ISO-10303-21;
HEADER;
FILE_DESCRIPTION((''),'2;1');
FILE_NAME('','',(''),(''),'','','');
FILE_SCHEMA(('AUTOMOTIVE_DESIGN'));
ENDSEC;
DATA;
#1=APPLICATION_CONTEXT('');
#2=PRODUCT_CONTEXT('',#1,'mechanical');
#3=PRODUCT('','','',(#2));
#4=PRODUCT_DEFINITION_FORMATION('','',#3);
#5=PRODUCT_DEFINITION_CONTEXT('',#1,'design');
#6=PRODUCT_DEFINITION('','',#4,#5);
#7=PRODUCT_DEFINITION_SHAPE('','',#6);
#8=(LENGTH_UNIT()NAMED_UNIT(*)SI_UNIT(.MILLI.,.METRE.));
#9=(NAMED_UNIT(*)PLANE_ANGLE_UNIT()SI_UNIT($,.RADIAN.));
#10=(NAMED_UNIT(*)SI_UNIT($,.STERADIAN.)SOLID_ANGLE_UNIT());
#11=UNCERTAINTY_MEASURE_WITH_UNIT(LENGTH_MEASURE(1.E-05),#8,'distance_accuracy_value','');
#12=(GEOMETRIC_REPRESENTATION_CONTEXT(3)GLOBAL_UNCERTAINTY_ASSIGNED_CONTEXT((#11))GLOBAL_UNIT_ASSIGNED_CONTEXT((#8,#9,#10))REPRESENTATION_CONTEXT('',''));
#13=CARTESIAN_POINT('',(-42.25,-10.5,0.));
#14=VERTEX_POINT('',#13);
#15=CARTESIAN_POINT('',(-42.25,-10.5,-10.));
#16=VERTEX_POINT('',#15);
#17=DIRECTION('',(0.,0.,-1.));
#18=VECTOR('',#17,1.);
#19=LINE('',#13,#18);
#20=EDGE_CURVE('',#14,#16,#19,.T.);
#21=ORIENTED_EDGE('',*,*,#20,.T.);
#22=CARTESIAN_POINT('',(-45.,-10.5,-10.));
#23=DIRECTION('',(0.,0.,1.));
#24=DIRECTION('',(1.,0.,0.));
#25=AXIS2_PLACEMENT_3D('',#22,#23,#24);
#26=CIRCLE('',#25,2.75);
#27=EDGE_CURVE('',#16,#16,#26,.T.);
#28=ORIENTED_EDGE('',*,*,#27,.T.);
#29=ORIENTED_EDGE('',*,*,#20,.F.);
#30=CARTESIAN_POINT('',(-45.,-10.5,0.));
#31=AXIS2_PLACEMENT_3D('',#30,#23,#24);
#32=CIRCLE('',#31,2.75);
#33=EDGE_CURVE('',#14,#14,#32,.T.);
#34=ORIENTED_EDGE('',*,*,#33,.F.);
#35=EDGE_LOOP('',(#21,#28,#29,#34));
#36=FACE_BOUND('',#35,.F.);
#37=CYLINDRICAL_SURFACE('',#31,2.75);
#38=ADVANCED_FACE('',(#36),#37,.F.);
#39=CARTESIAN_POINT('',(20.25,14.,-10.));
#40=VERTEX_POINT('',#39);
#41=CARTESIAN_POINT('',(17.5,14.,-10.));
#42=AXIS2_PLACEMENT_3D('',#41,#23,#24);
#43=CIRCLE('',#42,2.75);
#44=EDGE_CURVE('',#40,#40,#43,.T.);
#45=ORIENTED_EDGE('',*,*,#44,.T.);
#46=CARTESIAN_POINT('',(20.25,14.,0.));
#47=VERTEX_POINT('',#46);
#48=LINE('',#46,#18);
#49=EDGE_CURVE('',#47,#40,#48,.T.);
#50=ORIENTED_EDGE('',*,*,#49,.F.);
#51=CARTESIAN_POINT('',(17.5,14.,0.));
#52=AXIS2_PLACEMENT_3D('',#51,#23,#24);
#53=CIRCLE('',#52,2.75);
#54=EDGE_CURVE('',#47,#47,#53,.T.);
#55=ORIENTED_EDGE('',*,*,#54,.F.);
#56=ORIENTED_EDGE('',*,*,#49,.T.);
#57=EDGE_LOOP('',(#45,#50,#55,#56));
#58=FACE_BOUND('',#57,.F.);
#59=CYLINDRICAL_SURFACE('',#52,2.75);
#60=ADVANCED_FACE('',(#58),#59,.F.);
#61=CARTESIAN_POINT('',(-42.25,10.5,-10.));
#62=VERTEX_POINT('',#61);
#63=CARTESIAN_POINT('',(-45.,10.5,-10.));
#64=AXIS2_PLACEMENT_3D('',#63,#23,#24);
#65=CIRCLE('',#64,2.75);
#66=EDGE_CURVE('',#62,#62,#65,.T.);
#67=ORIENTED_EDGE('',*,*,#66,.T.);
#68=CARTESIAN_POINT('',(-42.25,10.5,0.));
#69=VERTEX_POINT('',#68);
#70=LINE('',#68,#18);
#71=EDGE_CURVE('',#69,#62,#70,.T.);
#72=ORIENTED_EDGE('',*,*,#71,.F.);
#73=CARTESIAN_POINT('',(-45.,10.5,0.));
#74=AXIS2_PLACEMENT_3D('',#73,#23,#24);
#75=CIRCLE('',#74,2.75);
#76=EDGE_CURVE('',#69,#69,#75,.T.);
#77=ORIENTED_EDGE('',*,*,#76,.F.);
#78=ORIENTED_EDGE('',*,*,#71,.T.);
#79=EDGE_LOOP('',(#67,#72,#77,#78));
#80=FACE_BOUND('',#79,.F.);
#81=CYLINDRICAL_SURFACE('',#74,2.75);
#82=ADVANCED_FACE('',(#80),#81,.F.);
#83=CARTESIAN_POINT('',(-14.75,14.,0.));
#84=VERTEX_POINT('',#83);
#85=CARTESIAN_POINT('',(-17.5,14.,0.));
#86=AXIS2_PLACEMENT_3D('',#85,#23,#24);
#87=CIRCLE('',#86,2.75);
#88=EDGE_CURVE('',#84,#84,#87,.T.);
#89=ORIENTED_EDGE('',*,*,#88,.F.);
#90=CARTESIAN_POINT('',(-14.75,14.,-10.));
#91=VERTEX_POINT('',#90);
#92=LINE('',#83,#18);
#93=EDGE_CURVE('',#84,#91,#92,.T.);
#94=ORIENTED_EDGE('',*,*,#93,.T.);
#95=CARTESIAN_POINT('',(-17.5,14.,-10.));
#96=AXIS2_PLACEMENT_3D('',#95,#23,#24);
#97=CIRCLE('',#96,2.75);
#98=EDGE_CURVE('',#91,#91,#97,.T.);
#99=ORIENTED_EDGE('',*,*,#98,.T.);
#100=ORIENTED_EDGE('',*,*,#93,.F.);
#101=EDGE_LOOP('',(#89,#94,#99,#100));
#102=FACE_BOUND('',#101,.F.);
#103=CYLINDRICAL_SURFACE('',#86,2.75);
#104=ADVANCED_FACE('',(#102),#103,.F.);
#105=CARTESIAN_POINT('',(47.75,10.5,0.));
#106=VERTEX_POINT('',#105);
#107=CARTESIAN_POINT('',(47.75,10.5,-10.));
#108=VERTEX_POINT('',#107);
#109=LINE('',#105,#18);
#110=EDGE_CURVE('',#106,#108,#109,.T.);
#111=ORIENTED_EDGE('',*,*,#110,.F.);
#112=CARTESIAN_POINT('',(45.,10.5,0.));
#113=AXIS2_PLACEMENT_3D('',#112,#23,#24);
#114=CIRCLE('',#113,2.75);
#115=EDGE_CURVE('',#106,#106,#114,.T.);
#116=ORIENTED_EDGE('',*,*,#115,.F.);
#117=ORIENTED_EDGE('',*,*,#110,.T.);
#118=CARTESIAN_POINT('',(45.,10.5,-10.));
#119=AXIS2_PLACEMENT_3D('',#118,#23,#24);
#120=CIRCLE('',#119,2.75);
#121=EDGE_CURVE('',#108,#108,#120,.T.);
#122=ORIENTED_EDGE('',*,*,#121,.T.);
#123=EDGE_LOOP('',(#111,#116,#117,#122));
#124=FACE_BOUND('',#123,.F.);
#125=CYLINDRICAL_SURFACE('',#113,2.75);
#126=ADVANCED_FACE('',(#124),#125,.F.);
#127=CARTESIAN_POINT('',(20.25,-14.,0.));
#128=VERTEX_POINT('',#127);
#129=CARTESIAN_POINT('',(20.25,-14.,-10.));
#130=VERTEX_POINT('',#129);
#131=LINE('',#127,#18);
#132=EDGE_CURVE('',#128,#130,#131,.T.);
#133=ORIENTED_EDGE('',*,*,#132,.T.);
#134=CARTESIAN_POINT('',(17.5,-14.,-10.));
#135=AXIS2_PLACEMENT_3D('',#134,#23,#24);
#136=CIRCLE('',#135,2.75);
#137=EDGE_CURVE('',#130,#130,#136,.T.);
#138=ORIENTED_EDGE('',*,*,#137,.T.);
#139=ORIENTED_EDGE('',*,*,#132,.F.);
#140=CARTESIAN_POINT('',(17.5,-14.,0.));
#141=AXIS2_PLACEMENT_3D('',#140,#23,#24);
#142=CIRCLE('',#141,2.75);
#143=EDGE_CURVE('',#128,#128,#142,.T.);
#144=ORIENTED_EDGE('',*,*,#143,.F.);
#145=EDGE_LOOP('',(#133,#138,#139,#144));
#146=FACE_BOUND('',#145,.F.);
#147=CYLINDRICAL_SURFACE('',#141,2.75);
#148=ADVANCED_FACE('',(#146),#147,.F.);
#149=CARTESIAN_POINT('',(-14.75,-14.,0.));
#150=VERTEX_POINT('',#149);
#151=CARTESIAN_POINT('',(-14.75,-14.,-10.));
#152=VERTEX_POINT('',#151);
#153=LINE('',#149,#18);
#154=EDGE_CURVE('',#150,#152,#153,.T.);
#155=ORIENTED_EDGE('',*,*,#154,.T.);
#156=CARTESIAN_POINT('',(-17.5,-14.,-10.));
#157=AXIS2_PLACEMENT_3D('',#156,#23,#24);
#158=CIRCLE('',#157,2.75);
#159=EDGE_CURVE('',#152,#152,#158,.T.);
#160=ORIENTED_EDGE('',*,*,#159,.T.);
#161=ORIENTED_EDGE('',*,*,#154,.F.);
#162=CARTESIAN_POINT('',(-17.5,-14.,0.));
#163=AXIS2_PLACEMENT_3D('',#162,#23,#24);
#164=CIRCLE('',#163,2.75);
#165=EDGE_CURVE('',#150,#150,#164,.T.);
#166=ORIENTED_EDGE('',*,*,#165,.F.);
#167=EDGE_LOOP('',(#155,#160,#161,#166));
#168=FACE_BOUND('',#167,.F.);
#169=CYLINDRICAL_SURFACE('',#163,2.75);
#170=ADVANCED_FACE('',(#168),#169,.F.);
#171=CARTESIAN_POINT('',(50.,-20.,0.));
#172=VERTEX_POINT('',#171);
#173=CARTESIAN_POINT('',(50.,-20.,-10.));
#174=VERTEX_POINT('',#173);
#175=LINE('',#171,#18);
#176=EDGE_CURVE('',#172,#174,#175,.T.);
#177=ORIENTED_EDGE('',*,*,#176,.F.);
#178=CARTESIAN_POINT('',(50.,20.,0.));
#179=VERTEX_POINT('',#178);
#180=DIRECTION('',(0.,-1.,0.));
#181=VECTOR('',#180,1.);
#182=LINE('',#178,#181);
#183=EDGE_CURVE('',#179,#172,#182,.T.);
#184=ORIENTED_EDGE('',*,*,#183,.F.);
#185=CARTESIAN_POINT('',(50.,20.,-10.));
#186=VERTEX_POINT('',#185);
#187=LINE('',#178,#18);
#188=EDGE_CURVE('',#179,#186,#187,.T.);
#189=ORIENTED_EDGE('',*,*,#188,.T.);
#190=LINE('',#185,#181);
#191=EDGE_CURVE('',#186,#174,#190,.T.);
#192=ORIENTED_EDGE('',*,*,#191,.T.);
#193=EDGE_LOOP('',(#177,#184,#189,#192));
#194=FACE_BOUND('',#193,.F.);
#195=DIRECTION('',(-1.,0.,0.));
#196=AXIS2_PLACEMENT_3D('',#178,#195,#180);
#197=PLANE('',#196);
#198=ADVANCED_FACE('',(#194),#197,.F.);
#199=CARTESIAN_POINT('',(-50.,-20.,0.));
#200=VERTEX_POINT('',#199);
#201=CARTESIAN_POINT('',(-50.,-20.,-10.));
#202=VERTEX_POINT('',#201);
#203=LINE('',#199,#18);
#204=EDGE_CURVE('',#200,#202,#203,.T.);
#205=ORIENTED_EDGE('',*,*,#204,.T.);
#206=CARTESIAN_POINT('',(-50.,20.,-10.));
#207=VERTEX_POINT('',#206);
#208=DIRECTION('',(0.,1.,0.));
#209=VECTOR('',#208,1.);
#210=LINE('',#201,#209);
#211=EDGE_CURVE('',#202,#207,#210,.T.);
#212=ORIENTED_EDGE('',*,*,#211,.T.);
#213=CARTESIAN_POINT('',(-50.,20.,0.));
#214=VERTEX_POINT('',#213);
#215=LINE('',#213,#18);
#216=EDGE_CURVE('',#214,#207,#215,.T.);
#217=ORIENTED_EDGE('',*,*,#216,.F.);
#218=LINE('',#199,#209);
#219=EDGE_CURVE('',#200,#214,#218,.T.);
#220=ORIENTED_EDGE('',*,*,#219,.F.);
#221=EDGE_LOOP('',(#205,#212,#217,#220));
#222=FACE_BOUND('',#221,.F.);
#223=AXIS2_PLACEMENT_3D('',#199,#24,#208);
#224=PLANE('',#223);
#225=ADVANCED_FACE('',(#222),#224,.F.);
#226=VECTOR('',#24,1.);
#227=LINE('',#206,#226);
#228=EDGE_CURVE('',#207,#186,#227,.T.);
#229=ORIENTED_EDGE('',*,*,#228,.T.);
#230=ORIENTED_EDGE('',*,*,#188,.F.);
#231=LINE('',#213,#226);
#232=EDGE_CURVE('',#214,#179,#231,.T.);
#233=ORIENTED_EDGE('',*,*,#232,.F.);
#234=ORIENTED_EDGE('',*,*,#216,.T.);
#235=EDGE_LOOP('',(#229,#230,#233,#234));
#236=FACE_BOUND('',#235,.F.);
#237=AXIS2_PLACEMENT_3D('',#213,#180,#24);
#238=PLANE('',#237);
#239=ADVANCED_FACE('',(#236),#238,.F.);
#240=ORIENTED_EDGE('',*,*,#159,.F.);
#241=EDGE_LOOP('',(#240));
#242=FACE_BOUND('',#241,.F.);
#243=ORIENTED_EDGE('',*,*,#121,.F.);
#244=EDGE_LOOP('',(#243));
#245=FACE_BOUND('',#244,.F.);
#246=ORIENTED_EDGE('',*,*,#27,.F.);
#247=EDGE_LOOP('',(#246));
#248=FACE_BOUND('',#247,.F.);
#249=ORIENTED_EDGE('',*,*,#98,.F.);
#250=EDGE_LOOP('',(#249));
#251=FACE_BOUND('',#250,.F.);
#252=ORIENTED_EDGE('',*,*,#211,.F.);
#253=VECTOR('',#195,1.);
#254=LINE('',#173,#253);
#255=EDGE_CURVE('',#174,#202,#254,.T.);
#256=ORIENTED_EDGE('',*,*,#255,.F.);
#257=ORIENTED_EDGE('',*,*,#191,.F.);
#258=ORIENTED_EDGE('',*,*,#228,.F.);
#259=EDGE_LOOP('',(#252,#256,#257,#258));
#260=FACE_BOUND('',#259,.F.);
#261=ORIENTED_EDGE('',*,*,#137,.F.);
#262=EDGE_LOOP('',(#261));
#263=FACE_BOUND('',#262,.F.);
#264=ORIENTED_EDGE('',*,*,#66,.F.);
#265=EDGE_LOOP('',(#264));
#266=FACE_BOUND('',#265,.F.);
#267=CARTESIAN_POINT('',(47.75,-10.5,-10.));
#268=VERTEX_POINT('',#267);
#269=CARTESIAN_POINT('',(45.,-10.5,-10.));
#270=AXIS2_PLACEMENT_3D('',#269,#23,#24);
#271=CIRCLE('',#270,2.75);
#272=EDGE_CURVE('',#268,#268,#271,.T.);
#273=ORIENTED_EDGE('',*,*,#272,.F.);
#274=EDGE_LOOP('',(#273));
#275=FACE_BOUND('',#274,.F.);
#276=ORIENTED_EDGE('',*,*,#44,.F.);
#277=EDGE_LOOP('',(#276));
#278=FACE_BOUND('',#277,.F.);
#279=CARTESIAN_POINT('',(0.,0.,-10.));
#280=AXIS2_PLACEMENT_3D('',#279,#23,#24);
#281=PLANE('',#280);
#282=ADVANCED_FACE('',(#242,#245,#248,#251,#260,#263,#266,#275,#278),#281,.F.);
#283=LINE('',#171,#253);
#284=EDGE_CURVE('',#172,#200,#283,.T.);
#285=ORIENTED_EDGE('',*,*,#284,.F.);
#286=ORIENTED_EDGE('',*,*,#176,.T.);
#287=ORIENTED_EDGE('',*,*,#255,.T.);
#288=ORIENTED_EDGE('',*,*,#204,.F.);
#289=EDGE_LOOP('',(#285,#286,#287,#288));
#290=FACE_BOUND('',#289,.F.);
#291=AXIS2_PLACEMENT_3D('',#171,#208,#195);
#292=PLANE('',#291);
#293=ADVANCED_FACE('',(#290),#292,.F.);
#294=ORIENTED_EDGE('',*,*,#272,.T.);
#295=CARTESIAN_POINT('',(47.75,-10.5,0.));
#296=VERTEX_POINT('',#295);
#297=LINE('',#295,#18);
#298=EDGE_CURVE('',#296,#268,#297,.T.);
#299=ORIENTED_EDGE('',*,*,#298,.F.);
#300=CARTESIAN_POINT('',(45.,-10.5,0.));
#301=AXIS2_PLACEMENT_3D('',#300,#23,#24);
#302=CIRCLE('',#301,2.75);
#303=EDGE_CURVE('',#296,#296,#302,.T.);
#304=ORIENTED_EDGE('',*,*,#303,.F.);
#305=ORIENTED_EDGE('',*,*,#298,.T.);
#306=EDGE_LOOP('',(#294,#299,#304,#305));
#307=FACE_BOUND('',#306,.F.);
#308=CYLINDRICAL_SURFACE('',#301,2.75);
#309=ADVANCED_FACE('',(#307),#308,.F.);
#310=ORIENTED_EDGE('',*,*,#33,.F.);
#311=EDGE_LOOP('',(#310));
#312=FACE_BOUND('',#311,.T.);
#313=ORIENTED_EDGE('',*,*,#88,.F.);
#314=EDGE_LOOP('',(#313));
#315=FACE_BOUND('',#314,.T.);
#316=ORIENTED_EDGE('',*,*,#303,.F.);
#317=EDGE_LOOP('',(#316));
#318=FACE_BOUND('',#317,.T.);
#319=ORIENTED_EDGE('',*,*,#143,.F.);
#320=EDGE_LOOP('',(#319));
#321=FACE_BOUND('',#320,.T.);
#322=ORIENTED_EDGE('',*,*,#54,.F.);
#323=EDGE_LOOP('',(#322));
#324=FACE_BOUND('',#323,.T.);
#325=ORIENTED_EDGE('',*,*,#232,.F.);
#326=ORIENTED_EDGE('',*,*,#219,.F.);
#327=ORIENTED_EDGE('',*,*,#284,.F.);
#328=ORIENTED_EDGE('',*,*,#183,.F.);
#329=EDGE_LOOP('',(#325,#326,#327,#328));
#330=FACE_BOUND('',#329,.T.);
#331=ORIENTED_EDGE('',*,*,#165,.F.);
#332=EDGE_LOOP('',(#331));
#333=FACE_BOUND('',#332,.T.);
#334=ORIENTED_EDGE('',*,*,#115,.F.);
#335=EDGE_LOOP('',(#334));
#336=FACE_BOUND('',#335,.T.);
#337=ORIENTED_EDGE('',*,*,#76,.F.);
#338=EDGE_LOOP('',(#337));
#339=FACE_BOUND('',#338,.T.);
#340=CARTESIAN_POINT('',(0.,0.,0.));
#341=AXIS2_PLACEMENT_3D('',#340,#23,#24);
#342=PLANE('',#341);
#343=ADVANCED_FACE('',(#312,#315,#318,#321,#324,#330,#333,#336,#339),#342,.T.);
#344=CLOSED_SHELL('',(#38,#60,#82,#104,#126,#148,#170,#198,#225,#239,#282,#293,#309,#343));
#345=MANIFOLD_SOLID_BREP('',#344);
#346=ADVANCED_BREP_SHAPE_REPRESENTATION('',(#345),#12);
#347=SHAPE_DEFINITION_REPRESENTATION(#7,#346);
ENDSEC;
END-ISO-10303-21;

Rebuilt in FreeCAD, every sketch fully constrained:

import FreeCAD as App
import Part
import Sketcher

V = App.Vector
Q = App.Units.Quantity


def add_polygon(sketch, points):
    """Adds a closed chain of lines whose ends are joined by coincident constraints."""
    first, n = sketch.GeometryCount, len(points)
    for a, b in zip(points, points[1:] + points[:1]):
        sketch.addGeometry(Part.LineSegment(App.Vector(*a, 0), App.Vector(*b, 0)), False)
    for i in range(n):
        sketch.addConstraint(Sketcher.Constraint("Coincident", first + i, 2, first + (i + 1) % n, 1))

doc = App.newDocument("Part")
body = doc.addObject("PartDesign::Body", "Body")

# Sketch on XY plane
sketch1 = body.newObject("Sketcher::SketchObject", "Sketch")
sketch1.AttachmentSupport = (doc.getObject("XY_Plane"), [""])
sketch1.MapMode = "FlatFace"
add_polygon(sketch1, [(50, 20), (-50, 20), (-50, -20), (50, -20)])  # lines 0-3
sketch1.addGeometry(Part.Circle(V(-45, -10.5, 0), V(0, 0, 1), 2.75), False)  # 4
sketch1.addGeometry(Part.Circle(V(45, -10.5, 0), V(0, 0, 1), 2.75), False)  # 5
sketch1.addGeometry(Part.Circle(V(-45, 10.5, 0), V(0, 0, 1), 2.75), False)  # 6
sketch1.addGeometry(Part.Circle(V(45, 10.5, 0), V(0, 0, 1), 2.75), False)  # 7
sketch1.addConstraint(Sketcher.Constraint("Horizontal", 0))
sketch1.addConstraint(Sketcher.Constraint("Vertical", 1))
sketch1.addConstraint(Sketcher.Constraint("Horizontal", 2))
sketch1.addConstraint(Sketcher.Constraint("Vertical", 3))
sketch1.addConstraint(Sketcher.Constraint("Equal", 4, 5))
sketch1.addConstraint(Sketcher.Constraint("Equal", 5, 6))
sketch1.addConstraint(Sketcher.Constraint("Equal", 6, 7))
sketch1.addConstraint(Sketcher.Constraint("Symmetric", 5, 3, 6, 3, -1, 1))
sketch1.addConstraint(Sketcher.Constraint("Symmetric", 4, 3, 7, 3, -1, 1))
sketch1.addConstraint(Sketcher.Constraint("Symmetric", 0, 2, 2, 2, -1, 1))
sketch1.addConstraint(Sketcher.Constraint("Symmetric", 4, 3, 5, 3, -2))
sketch1.addConstraint(Sketcher.Constraint("Diameter", 4, Q("5.5 mm")))
sketch1.addConstraint(Sketcher.Constraint("DistanceX", 0, 2, 0, 1, Q("100 mm")))
sketch1.addConstraint(Sketcher.Constraint("DistanceY", 1, 2, 1, 1, Q("40 mm")))
sketch1.addConstraint(Sketcher.Constraint("DistanceX", 4, 3, 5, 3, Q("90 mm")))
sketch1.addConstraint(Sketcher.Constraint("DistanceY", 4, 3, 6, 3, Q("21 mm")))
pad1 = body.newObject("PartDesign::Pad", "Pad")
pad1.Profile = sketch1
pad1.Length = 10
pad1.Reversed = True

# Sketch on XY plane
sketch2 = body.newObject("Sketcher::SketchObject", "Sketch001")
sketch2.AttachmentSupport = (doc.getObject("XY_Plane"), [""])
sketch2.MapMode = "FlatFace"
sketch2.addGeometry(Part.Circle(V(-17.5, 14, 0), V(0, 0, 1), 2.75), False)
sketch2.addGeometry(Part.Circle(V(17.5, 14, 0), V(0, 0, 1), 2.75), False)
sketch2.addGeometry(Part.Circle(V(-17.5, -14, 0), V(0, 0, 1), 2.75), False)
sketch2.addGeometry(Part.Circle(V(17.5, -14, 0), V(0, 0, 1), 2.75), False)
sketch2.addConstraint(Sketcher.Constraint("Equal", 0, 1))
sketch2.addConstraint(Sketcher.Constraint("Equal", 1, 2))
sketch2.addConstraint(Sketcher.Constraint("Equal", 2, 3))
sketch2.addConstraint(Sketcher.Constraint("Symmetric", 1, 3, 2, 3, -1, 1))
sketch2.addConstraint(Sketcher.Constraint("Symmetric", 0, 3, 3, 3, -1, 1))
sketch2.addConstraint(Sketcher.Constraint("Symmetric", 0, 3, 1, 3, -2))
sketch2.addConstraint(Sketcher.Constraint("Diameter", 0, Q("5.5 mm")))
sketch2.addConstraint(Sketcher.Constraint("DistanceY", -1, 1, 0, 3, Q("14 mm")))
sketch2.addConstraint(Sketcher.Constraint("DistanceX", 0, 3, 1, 3, Q("35 mm")))
pocket1 = body.newObject("PartDesign::Pocket", "Pocket")
pocket1.Profile = sketch2
pocket1.Type = "ThroughAll"

doc.recompute()
